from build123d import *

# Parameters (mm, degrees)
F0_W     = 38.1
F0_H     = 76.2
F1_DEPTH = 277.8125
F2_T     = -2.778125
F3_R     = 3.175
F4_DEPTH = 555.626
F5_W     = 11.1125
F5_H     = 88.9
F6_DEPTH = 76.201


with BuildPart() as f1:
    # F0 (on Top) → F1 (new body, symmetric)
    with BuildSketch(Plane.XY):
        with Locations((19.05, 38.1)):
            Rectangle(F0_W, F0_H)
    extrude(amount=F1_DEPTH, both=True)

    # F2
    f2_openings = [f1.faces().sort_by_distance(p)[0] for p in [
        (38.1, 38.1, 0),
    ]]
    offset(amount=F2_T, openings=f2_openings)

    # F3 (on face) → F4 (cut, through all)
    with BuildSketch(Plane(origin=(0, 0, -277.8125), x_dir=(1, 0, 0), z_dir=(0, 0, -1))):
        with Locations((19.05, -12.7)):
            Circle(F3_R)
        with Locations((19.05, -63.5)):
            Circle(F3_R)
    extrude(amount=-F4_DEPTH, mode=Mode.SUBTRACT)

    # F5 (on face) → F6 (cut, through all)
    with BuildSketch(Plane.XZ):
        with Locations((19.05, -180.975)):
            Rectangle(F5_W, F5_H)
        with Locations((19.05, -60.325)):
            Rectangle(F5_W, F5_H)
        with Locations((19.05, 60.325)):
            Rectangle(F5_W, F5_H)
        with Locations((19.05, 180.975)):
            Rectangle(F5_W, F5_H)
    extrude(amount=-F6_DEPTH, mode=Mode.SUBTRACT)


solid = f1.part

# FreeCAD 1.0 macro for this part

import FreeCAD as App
import Part
import Sketcher

V = App.Vector
Q = App.Units.Quantity


def faces_at(feature, points):
    """Names of the faces that lie closest to the given points."""
    faces = feature.Shape.Faces
    near = lambda p: min(range(len(faces)), key=lambda i: faces[i].distToShape(Part.Vertex(*p))[0])
    return sorted({f"Face{near(p) + 1}" for p in points})


def add_polygon(sketch, points):
    """Adds a closed chain of lines whose ends are joined by coincident constraints."""
    first, n = sketch.GeometryCount, len(points)
    for a, b in zip(points, points[1:] + points[:1]):
        sketch.addGeometry(Part.LineSegment(App.Vector(*a, 0), App.Vector(*b, 0)), False)
    for i in range(n):
        sketch.addConstraint(Sketcher.Constraint("Coincident", first + i, 2, first + (i + 1) % n, 1))

doc = App.newDocument("Part")
params = doc.addObject("Spreadsheet::Sheet", "Params")
for row, (alias, value) in enumerate([
    ("sketch1_height", "3 in"),
    ("sketch1_width", "1.5 in"),
    ("pad1_length", "21.875 in"),
    ("thickness_wall", "0.109375 in"),
    ("sketch2_diameter", "0.25 in"),
    ("sketch3_height", "3.5 in"),
    ("sketch3_width", "0.4375 in"),
], start=1):
    params.set(f"A{row}", alias)
    params.set(f"B{row}", "=" + value)
    params.setAlias(f"B{row}", alias)

body = doc.addObject("PartDesign::Body", "Body")

# Sketch on XY plane
sketch1 = body.newObject("Sketcher::SketchObject", "Sketch")
sketch1.AttachmentSupport = (doc.getObject("XY_Plane"), [""])
sketch1.MapMode = "FlatFace"
add_polygon(sketch1, [(0, 76.2), (0, 0), (38.1, 0), (38.1, 76.2)])  # lines 0-3
sketch1.addConstraint(Sketcher.Constraint("Vertical", 0))
sketch1.addConstraint(Sketcher.Constraint("Horizontal", 1))
sketch1.addConstraint(Sketcher.Constraint("Vertical", 2))
sketch1.addConstraint(Sketcher.Constraint("Horizontal", 3))
sketch1.addConstraint(Sketcher.Constraint("Coincident", 0, 2, -1, 1))
sketch1.addConstraint(Sketcher.Constraint("DistanceY", 0, 2, 0, 1, Q("3 in")))
sketch1.addConstraint(Sketcher.Constraint("DistanceX", 1, 1, 1, 2, Q("1.5 in")))
sketch1.setExpression("Constraints[9]", "Params.sketch1_height")
sketch1.setExpression("Constraints[10]", "Params.sketch1_width")
pad1 = body.newObject("PartDesign::Pad", "Pad")
pad1.Profile = sketch1
pad1.setExpression("Length", "Params.pad1_length")
pad1.Midplane = True
doc.recompute()

thickness = body.newObject("PartDesign::Thickness", "Thickness")
thickness.Base = (pad1, faces_at(pad1, [(38.1, 38.1, 0)]))
thickness.setExpression("Value", "Params.thickness_wall")
thickness.Reversed = True
thickness.Join = "Arc"

# Sketch on XY plane
sketch2 = body.newObject("Sketcher::SketchObject", "Sketch001")
sketch2.AttachmentSupport = (doc.getObject("XY_Plane"), [""])
sketch2.MapMode = "FlatFace"
sketch2.AttachmentOffset = App.Placement(V(0, 0, -10.9375 * 25.4), App.Rotation())
sketch2.addGeometry(Part.Circle(V(19.05, 12.7, 0), V(0, 0, 1), 3.175), False)
sketch2.addGeometry(Part.Circle(V(19.05, 63.5, 0), V(0, 0, 1), 3.175), False)
sketch2.addConstraint(Sketcher.Constraint("Equal", 0, 1))
sketch2.addConstraint(Sketcher.Constraint("Vertical", 0, 3, 1, 3))
sketch2.addConstraint(Sketcher.Constraint("Diameter", 0, Q("0.25 in")))
sketch2.addConstraint(Sketcher.Constraint("DistanceY", 0, 3, 1, 3, Q("2 in")))
sketch2.addConstraint(Sketcher.Constraint("DistanceY", -1, 1, 0, 3, Q("0.5 in")))
sketch2.addConstraint(Sketcher.Constraint("DistanceX", -1, 1, 0, 3, Q("0.75 in")))
sketch2.setExpression("Constraints[2]", "Params.sketch2_diameter")
pocket1 = body.newObject("PartDesign::Pocket", "Pocket")
pocket1.Profile = sketch2
pocket1.Type = "ThroughAll"
pocket1.Reversed = True

# Sketch on XZ plane
sketch3 = body.newObject("Sketcher::SketchObject", "Sketch002")
sketch3.AttachmentSupport = (doc.getObject("XZ_Plane"), [""])
sketch3.MapMode = "FlatFace"
add_polygon(sketch3, [(13.49375, -136.525), (13.49375, -225.425), (24.60625, -225.425), (24.60625, -136.525)])  # lines 0-3
add_polygon(sketch3, [(13.49375, -15.875), (13.49375, -104.775), (24.60625, -104.775), (24.60625, -15.875)])  # lines 4-7
add_polygon(sketch3, [(13.49375, 104.775), (13.49375, 15.875), (24.60625, 15.875), (24.60625, 104.775)])  # lines 8-11
add_polygon(sketch3, [(13.49375, 225.425), (13.49375, 136.525), (24.60625, 136.525), (24.60625, 225.425)])  # lines 12-15
sketch3.addConstraint(Sketcher.Constraint("Vertical", 0))
sketch3.addConstraint(Sketcher.Constraint("Horizontal", 1))
sketch3.addConstraint(Sketcher.Constraint("Vertical", 2))
sketch3.addConstraint(Sketcher.Constraint("Horizontal", 3))
sketch3.addConstraint(Sketcher.Constraint("Vertical", 4))
sketch3.addConstraint(Sketcher.Constraint("Horizontal", 5))
sketch3.addConstraint(Sketcher.Constraint("Vertical", 6))
sketch3.addConstraint(Sketcher.Constraint("Horizontal", 7))
sketch3.addConstraint(Sketcher.Constraint("Vertical", 8))
sketch3.addConstraint(Sketcher.Constraint("Horizontal", 9))
sketch3.addConstraint(Sketcher.Constraint("Vertical", 10))
sketch3.addConstraint(Sketcher.Constraint("Horizontal", 11))
sketch3.addConstraint(Sketcher.Constraint("Vertical", 12))
sketch3.addConstraint(Sketcher.Constraint("Horizontal", 13))
sketch3.addConstraint(Sketcher.Constraint("Vertical", 14))
sketch3.addConstraint(Sketcher.Constraint("Horizontal", 15))
sketch3.addConstraint(Sketcher.Constraint("Symmetric", 7, 2, 8, 2, -1))
sketch3.addConstraint(Sketcher.Constraint("Symmetric", 5, 2, 10, 2, -1))
sketch3.addConstraint(Sketcher.Constraint("Symmetric", 3, 2, 12, 2, -1))
sketch3.addConstraint(Sketcher.Constraint("Symmetric", 1, 2, 14, 2, -1))
sketch3.addConstraint(Sketcher.Constraint("Vertical", 3, 2, 4, 2))
sketch3.addConstraint(Sketcher.Constraint("Vertical", 2, 2, 5, 2))
sketch3.addConstraint(Sketcher.Constraint("Equal", 2, 4))
sketch3.addConstraint(Sketcher.Constraint("DistanceY", 0, 2, 0, 1, Q("3.5 in")))
sketch3.addConstraint(Sketcher.Constraint("DistanceY", 3, 2, 8, 2, Q("6 in")))
sketch3.addConstraint(Sketcher.Constraint("DistanceX", 1, 1, 1, 2, Q("0.4375 in")))
sketch3.addConstraint(Sketcher.Constraint("DistanceY", 3, 2, 4, 2, Q("1.25 in")))
sketch3.addConstraint(Sketcher.Constraint("DistanceX", -1, 1, 0, 2, Q("0.53125 in")))
sketch3.setExpression("Constraints[39]", "Params.sketch3_height")
sketch3.setExpression("Constraints[41]", "Params.sketch3_width")
pocket2 = body.newObject("PartDesign::Pocket", "Pocket001")
pocket2.Profile = sketch3
pocket2.Type = "ThroughAll"

doc.recompute()
